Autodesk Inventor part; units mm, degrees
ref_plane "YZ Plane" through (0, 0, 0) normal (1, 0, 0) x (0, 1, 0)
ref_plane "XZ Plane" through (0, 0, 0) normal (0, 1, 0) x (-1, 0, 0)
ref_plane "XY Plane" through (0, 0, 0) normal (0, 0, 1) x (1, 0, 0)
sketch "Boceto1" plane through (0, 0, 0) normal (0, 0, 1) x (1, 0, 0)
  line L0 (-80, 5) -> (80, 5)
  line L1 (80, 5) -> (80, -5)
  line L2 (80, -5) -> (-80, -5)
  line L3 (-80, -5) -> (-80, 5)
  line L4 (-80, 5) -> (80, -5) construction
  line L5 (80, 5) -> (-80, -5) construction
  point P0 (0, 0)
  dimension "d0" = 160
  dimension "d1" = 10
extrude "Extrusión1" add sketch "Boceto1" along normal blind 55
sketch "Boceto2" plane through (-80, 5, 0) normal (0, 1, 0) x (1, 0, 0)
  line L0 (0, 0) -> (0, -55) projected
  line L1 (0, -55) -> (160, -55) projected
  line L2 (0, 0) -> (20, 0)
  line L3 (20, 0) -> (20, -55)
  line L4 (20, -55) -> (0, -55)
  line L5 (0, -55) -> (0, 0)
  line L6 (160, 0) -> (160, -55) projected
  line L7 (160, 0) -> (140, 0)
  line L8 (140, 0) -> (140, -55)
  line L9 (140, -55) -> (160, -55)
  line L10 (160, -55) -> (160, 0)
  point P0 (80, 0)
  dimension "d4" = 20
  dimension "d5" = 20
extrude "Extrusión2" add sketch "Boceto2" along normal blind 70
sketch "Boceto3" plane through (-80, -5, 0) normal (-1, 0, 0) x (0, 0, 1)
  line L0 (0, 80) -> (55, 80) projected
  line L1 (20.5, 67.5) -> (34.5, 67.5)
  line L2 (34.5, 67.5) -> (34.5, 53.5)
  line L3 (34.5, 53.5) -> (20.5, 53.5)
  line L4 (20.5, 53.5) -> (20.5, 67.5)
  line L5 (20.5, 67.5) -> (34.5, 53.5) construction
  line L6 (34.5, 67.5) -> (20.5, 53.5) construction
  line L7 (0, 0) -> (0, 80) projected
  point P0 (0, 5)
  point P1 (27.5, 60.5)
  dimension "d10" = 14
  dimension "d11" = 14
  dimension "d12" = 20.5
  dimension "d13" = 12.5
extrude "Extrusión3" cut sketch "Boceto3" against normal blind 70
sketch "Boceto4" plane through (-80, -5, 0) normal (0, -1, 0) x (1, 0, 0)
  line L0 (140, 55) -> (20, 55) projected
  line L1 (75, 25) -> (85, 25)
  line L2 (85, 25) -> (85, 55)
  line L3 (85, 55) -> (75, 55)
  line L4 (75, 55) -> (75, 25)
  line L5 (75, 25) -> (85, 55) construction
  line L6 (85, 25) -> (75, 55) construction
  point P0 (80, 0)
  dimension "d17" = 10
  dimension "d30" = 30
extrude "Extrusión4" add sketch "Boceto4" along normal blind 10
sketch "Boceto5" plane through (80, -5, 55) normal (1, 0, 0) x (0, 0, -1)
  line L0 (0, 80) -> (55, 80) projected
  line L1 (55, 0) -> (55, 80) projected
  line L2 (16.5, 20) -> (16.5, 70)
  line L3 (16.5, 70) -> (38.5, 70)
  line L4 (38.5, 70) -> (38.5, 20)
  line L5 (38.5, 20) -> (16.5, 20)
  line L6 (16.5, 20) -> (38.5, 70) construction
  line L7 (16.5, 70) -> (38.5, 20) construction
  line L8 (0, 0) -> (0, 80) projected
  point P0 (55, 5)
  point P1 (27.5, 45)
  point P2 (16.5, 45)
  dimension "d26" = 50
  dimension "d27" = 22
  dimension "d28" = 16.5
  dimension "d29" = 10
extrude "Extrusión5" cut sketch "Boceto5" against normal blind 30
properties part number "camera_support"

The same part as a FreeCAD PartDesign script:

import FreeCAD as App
import Part
import Sketcher
from FreeCAD import Vector
Q = App.Units.Quantity


def add_polygon(sketch, points):
    """Adds a closed chain of lines whose ends are joined by coincident constraints."""
    first, n = sketch.GeometryCount, len(points)
    for a, b in zip(points, points[1:] + points[:1]):
        sketch.addGeometry(Part.LineSegment(App.Vector(*a, 0), App.Vector(*b, 0)), False)
    for i in range(n):
        sketch.addConstraint(Sketcher.Constraint("Coincident", first + i, 2, first + (i + 1) % n, 1))

doc = App.newDocument("Part")
params = doc.addObject("Spreadsheet::Sheet", "Params")
for row, (alias, value) in enumerate([
    ("sketch1_width", "160 mm"),
    ("sketch1_height", "10 mm"),
    ("pad1_length", "55 mm"),
    ("sketch2_width", "20 mm"),
    ("sketch2_height", "55 mm"),
    ("pad2_length", "70 mm"),
    ("sketch3_width", "14 mm"),
    ("pocket1_length", "70 mm"),
    ("sketch4_width", "10 mm"),
    ("sketch4_height", "30 mm"),
    ("pad3_length", "10 mm"),
    ("sketch5_width", "50 mm"),
    ("sketch5_height", "22 mm"),
    ("pocket2_length", "30 mm"),
], start=1):
    params.set(f"A{row}", alias)
    params.set(f"B{row}", "=" + value)
    params.setAlias(f"B{row}", alias)

body = doc.addObject("PartDesign::Body", "Body")

# Sketch on XY plane
sketch1 = body.newObject("Sketcher::SketchObject", "Sketch")
sketch1.AttachmentSupport = (doc.getObject("XY_Plane"), [""])
sketch1.MapMode = "FlatFace"
add_polygon(sketch1, [(80, 5), (-80, 5), (-80, -5), (80, -5)])  # lines 0-3
sketch1.addConstraint([
    Sketcher.Constraint("Horizontal", 0),
    Sketcher.Constraint("Vertical", 1),
    Sketcher.Constraint("Horizontal", 2),
    Sketcher.Constraint("Vertical", 3),
    Sketcher.Constraint("Symmetric", 0, 2, 2, 2, -1, 1),
    Sketcher.Constraint("DistanceX", 0, 2, 0, 1, Q("160 mm")),
    Sketcher.Constraint("DistanceY", 1, 2, 1, 1, Q("10 mm")),
])
sketch1.setExpression("Constraints[9]", "Params.sketch1_width")
sketch1.setExpression("Constraints[10]", "Params.sketch1_height")
pad1 = body.newObject("PartDesign::Pad", "Pad")
pad1.Profile = sketch1
pad1.setExpression("Length", "Params.pad1_length")

# Sketch on XZ plane
sketch2 = body.newObject("Sketcher::SketchObject", "Sketch001")
sketch2.AttachmentSupport = (doc.getObject("XZ_Plane"), [""])
sketch2.MapMode = "FlatFace"
sketch2.AttachmentOffset = App.Placement(Vector(0, 0, -5), App.Rotation())
add_polygon(sketch2, [(-60, 0), (-80, 0), (-80, 55), (-60, 55)])  # lines 0-3
add_polygon(sketch2, [(60, 0), (60, 55), (80, 55), (80, 0)])  # lines 4-7
sketch2.addConstraint([
    Sketcher.Constraint("Horizontal", 0),
    Sketcher.Constraint("Vertical", 1),
    Sketcher.Constraint("Horizontal", 2),
    Sketcher.Constraint("Vertical", 3),
    Sketcher.Constraint("Vertical", 4),
    Sketcher.Constraint("Horizontal", 5),
    Sketcher.Constraint("Vertical", 6),
    Sketcher.Constraint("Horizontal", 7),
    Sketcher.Constraint("Symmetric", 0, 2, 6, 2, -1, 1),
    Sketcher.Constraint("Symmetric", 2, 2, 4, 2, -2),
    Sketcher.Constraint("PointOnObject", 0, 2, -1),
    Sketcher.Constraint("DistanceX", 0, 2, 0, 1, Q("20 mm")),
    Sketcher.Constraint("DistanceY", 1, 1, 1, 2, Q("55 mm")),
    Sketcher.Constraint("DistanceX", 0, 2, -1, 1, Q("80 mm")),
])
sketch2.setExpression("Constraints[19]", "Params.sketch2_width")
sketch2.setExpression("Constraints[20]", "Params.sketch2_height")
pad2 = body.newObject("PartDesign::Pad", "Pad001")
pad2.Profile = sketch2
pad2.setExpression("Length", "Params.pad2_length")
pad2.Reversed = True

# Sketch on YZ plane
sketch3 = body.newObject("Sketcher::SketchObject", "Sketch002")
sketch3.AttachmentSupport = (doc.getObject("YZ_Plane"), [""])
sketch3.MapMode = "FlatFace"
sketch3.AttachmentOffset = App.Placement(Vector(0, 0, -80), App.Rotation())
add_polygon(sketch3, [(62.5, 34.5), (62.5, 20.5), (48.5, 20.5), (48.5, 34.5)])  # lines 0-3
sketch3.addConstraint([
    Sketcher.Constraint("Vertical", 0),
    Sketcher.Constraint("Horizontal", 1),
    Sketcher.Constraint("Vertical", 2),
    Sketcher.Constraint("Horizontal", 3),
    Sketcher.Constraint("Equal", 3, 0),
    Sketcher.Constraint("DistanceX", 1, 2, 1, 1, Q("14 mm")),
    Sketcher.Constraint("DistanceY", -1, 1, 0, 2, Q("20.5 mm")),
    Sketcher.Constraint("DistanceX", -1, 1, 0, 2, Q("62.5 mm")),
])
sketch3.setExpression("Constraints[9]", "Params.sketch3_width")
pocket1 = body.newObject("PartDesign::Pocket", "Pocket")
pocket1.Profile = sketch3
pocket1.setExpression("Length", "Params.pocket1_length")
pocket1.Reversed = True

# Sketch on XZ plane
sketch4 = body.newObject("Sketcher::SketchObject", "Sketch003")
sketch4.AttachmentSupport = (doc.getObject("XZ_Plane"), [""])
sketch4.MapMode = "FlatFace"
sketch4.AttachmentOffset = App.Placement(Vector(0, 0, 5), App.Rotation())
add_polygon(sketch4, [(5, 25), (5, 55), (-5, 55), (-5, 25)])  # lines 0-3
sketch4.addConstraint([
    Sketcher.Constraint("Vertical", 0),
    Sketcher.Constraint("Horizontal", 1),
    Sketcher.Constraint("Vertical", 2),
    Sketcher.Constraint("Horizontal", 3),
    Sketcher.Constraint("DistanceX", 1, 2, 1, 1, Q("10 mm")),
    Sketcher.Constraint("DistanceY", 0, 1, 0, 2, Q("30 mm")),
    Sketcher.Constraint("DistanceX", -1, 1, 0, 2, Q("5 mm")),
    Sketcher.Constraint("DistanceY", -1, 1, 0, 2, Q("55 mm")),
])
sketch4.setExpression("Constraints[8]", "Params.sketch4_width")
sketch4.setExpression("Constraints[9]", "Params.sketch4_height")
pad3 = body.newObject("PartDesign::Pad", "Pad002")
pad3.Profile = sketch4
pad3.setExpression("Length", "Params.pad3_length")

# Sketch on YZ plane
sketch5 = body.newObject("Sketcher::SketchObject", "Sketch004")
sketch5.AttachmentSupport = (doc.getObject("YZ_Plane"), [""])
sketch5.MapMode = "FlatFace"
sketch5.AttachmentOffset = App.Placement(Vector(0, 0, 80), App.Rotation())
add_polygon(sketch5, [(65, 38.5), (15, 38.5), (15, 16.5), (65, 16.5)])  # lines 0-3
sketch5.addConstraint([
    Sketcher.Constraint("Horizontal", 0),
    Sketcher.Constraint("Vertical", 1),
    Sketcher.Constraint("Horizontal", 2),
    Sketcher.Constraint("Vertical", 3),
    Sketcher.Constraint("DistanceX", 0, 2, 0, 1, Q("50 mm")),
    Sketcher.Constraint("DistanceY", 1, 2, 1, 1, Q("22 mm")),
    Sketcher.Constraint("DistanceY", -1, 1, 1, 2, Q("16.5 mm")),
    Sketcher.Constraint("DistanceX", -1, 1, 0, 2, Q("15 mm")),
])
sketch5.setExpression("Constraints[8]", "Params.sketch5_width")
sketch5.setExpression("Constraints[9]", "Params.sketch5_height")
pocket2 = body.newObject("PartDesign::Pocket", "Pocket001")
pocket2.Profile = sketch5
pocket2.setExpression("Length", "Params.pocket2_length")

doc.recompute()
